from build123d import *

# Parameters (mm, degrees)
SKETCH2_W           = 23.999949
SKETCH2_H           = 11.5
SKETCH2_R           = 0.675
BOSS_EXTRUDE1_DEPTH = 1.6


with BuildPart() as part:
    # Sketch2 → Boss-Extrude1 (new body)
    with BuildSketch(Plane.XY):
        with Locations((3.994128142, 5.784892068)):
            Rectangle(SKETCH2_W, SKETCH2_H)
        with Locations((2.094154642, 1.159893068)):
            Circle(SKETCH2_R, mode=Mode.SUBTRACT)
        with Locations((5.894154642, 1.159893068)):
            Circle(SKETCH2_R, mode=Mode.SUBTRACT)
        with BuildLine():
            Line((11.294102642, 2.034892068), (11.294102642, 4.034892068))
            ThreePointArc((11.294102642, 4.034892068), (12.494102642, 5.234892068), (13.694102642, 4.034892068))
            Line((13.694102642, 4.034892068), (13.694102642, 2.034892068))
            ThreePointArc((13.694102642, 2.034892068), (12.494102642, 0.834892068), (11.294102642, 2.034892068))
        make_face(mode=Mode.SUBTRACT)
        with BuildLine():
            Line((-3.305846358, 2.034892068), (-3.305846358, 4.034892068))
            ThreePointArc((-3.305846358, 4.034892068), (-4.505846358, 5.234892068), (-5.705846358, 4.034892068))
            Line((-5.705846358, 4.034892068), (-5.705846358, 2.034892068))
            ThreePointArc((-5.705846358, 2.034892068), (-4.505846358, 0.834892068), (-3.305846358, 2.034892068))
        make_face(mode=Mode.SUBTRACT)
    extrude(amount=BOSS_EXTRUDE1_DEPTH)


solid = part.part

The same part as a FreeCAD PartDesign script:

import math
import FreeCAD as App
import Part
import Sketcher


def add_polygon(sketch, points):
    """Adds a closed chain of lines whose ends are joined by coincident constraints."""
    first, n = sketch.GeometryCount, len(points)
    for a, b in zip(points, points[1:] + points[:1]):
        sketch.addGeometry(Part.LineSegment(App.Vector(*a, 0), App.Vector(*b, 0)), False)
    for i in range(n):
        sketch.addConstraint(Sketcher.Constraint("Coincident", first + i, 2, first + (i + 1) % n, 1))

doc = App.newDocument("Part")
body = doc.addObject("PartDesign::Body", "Body")

sketch1 = body.newObject("Sketcher::SketchObject", "Sketch")
sketch1.AttachmentSupport = (doc.getObject("XY_Plane"), [""])
sketch1.MapMode = "FlatFace"
add_polygon(sketch1, [(-8.005846, 11.534892), (-8.005846, 0.034892), (15.994103, 0.034892), (15.994103, 11.534892)])
sketch1.addGeometry(Part.Circle(App.Vector(2.094155, 1.159893, 0), App.Vector(0, 0, 1), 0.675), False)
sketch1.addGeometry(Part.Circle(App.Vector(5.894155, 1.159893, 0), App.Vector(0, 0, 1), 0.675), False)
sketch1.addGeometry(Part.LineSegment(App.Vector(-3.305846, 4.034892, 0), App.Vector(-3.305846, 2.034892, 0)), False)
sketch1.addGeometry(Part.ArcOfCircle(Part.Circle(App.Vector(-4.505846, 2.034892, 0), App.Vector(0, 0, 1), 1.2), math.radians(180), math.radians(360)), False)
sketch1.addGeometry(Part.LineSegment(App.Vector(-5.705846, 2.034892, 0), App.Vector(-5.705846, 4.034892, 0)), False)
sketch1.addGeometry(Part.ArcOfCircle(Part.Circle(App.Vector(-4.505846, 4.034892, 0), App.Vector(0, 0, 1), 1.2), math.radians(0), math.radians(180)), False)
sketch1.addGeometry(Part.ArcOfCircle(Part.Circle(App.Vector(12.494103, 2.034892, 0), App.Vector(0, 0, 1), 1.2), math.radians(180), math.radians(360)), False)
sketch1.addGeometry(Part.LineSegment(App.Vector(11.294103, 2.034892, 0), App.Vector(11.294103, 4.034892, 0)), False)
sketch1.addGeometry(Part.ArcOfCircle(Part.Circle(App.Vector(12.494103, 4.034892, 0), App.Vector(0, 0, 1), 1.2), math.radians(0), math.radians(180)), False)
sketch1.addGeometry(Part.LineSegment(App.Vector(13.694103, 4.034892, 0), App.Vector(13.694103, 2.034892, 0)), False)
sketch1.addConstraint([
    Sketcher.Constraint("Tangent", 6, 2, 7, 2),
    Sketcher.Constraint("Tangent", 7, 1, 8, 1),
    Sketcher.Constraint("Tangent", 8, 2, 9, 2),
    Sketcher.Constraint("Tangent", 9, 1, 6, 1),
    Sketcher.Constraint("Tangent", 10, 1, 11, 1),
    Sketcher.Constraint("Tangent", 11, 2, 12, 2),
    Sketcher.Constraint("Tangent", 12, 1, 13, 1),
    Sketcher.Constraint("Tangent", 13, 2, 10, 2),
    Sketcher.Constraint("Vertical", 0),
    Sketcher.Constraint("Horizontal", 1),
    Sketcher.Constraint("Vertical", 2),
    Sketcher.Constraint("Horizontal", 3),
    Sketcher.Constraint("Vertical", 6),
    Sketcher.Constraint("Vertical", 8),
    Sketcher.Constraint("Vertical", 11),
    Sketcher.Constraint("Vertical", 13),
    Sketcher.Constraint("Equal", 4, 5),
    Sketcher.Constraint("Equal", 9, 10),
    Sketcher.Constraint("Horizontal", 4, 3, 5, 3),
    Sketcher.Constraint("Horizontal", 7, 3, 10, 3),
    Sketcher.Constraint("Horizontal", 9, 3, 12, 3),
    Sketcher.Constraint("Radius", 7, 1.2),
    Sketcher.Constraint("Diameter", 4, 1.35),
    Sketcher.Constraint("DistanceY", 6, 2, 6, 1, 2.0),
    Sketcher.Constraint("DistanceY", 0, 2, 0, 1, 11.5),
    Sketcher.Constraint("DistanceY", 0, 2, 7, 3, 2.0),
    Sketcher.Constraint("DistanceX", 4, 3, 5, 3, 3.8),
    Sketcher.Constraint("DistanceX", 7, 3, 4, 3, 6.600001),
    Sketcher.Constraint("DistanceX", 0, 2, 7, 3, 3.5),
    Sketcher.Constraint("DistanceX", 10, 3, 1, 2, 3.5),
    Sketcher.Constraint("DistanceY", 4, 3, 7, 3, 0.874999),
    Sketcher.Constraint("DistanceX", 1, 1, 1, 2, 23.999949),
    Sketcher.Constraint("DistanceX", -1, 1, 4, 3, 2.094155),
    Sketcher.Constraint("DistanceY", -1, 1, 4, 3, 1.159893),
])
pad1 = body.newObject("PartDesign::Pad", "Pad")
pad1.Profile = sketch1
pad1.Length = 1.6

doc.recompute()
